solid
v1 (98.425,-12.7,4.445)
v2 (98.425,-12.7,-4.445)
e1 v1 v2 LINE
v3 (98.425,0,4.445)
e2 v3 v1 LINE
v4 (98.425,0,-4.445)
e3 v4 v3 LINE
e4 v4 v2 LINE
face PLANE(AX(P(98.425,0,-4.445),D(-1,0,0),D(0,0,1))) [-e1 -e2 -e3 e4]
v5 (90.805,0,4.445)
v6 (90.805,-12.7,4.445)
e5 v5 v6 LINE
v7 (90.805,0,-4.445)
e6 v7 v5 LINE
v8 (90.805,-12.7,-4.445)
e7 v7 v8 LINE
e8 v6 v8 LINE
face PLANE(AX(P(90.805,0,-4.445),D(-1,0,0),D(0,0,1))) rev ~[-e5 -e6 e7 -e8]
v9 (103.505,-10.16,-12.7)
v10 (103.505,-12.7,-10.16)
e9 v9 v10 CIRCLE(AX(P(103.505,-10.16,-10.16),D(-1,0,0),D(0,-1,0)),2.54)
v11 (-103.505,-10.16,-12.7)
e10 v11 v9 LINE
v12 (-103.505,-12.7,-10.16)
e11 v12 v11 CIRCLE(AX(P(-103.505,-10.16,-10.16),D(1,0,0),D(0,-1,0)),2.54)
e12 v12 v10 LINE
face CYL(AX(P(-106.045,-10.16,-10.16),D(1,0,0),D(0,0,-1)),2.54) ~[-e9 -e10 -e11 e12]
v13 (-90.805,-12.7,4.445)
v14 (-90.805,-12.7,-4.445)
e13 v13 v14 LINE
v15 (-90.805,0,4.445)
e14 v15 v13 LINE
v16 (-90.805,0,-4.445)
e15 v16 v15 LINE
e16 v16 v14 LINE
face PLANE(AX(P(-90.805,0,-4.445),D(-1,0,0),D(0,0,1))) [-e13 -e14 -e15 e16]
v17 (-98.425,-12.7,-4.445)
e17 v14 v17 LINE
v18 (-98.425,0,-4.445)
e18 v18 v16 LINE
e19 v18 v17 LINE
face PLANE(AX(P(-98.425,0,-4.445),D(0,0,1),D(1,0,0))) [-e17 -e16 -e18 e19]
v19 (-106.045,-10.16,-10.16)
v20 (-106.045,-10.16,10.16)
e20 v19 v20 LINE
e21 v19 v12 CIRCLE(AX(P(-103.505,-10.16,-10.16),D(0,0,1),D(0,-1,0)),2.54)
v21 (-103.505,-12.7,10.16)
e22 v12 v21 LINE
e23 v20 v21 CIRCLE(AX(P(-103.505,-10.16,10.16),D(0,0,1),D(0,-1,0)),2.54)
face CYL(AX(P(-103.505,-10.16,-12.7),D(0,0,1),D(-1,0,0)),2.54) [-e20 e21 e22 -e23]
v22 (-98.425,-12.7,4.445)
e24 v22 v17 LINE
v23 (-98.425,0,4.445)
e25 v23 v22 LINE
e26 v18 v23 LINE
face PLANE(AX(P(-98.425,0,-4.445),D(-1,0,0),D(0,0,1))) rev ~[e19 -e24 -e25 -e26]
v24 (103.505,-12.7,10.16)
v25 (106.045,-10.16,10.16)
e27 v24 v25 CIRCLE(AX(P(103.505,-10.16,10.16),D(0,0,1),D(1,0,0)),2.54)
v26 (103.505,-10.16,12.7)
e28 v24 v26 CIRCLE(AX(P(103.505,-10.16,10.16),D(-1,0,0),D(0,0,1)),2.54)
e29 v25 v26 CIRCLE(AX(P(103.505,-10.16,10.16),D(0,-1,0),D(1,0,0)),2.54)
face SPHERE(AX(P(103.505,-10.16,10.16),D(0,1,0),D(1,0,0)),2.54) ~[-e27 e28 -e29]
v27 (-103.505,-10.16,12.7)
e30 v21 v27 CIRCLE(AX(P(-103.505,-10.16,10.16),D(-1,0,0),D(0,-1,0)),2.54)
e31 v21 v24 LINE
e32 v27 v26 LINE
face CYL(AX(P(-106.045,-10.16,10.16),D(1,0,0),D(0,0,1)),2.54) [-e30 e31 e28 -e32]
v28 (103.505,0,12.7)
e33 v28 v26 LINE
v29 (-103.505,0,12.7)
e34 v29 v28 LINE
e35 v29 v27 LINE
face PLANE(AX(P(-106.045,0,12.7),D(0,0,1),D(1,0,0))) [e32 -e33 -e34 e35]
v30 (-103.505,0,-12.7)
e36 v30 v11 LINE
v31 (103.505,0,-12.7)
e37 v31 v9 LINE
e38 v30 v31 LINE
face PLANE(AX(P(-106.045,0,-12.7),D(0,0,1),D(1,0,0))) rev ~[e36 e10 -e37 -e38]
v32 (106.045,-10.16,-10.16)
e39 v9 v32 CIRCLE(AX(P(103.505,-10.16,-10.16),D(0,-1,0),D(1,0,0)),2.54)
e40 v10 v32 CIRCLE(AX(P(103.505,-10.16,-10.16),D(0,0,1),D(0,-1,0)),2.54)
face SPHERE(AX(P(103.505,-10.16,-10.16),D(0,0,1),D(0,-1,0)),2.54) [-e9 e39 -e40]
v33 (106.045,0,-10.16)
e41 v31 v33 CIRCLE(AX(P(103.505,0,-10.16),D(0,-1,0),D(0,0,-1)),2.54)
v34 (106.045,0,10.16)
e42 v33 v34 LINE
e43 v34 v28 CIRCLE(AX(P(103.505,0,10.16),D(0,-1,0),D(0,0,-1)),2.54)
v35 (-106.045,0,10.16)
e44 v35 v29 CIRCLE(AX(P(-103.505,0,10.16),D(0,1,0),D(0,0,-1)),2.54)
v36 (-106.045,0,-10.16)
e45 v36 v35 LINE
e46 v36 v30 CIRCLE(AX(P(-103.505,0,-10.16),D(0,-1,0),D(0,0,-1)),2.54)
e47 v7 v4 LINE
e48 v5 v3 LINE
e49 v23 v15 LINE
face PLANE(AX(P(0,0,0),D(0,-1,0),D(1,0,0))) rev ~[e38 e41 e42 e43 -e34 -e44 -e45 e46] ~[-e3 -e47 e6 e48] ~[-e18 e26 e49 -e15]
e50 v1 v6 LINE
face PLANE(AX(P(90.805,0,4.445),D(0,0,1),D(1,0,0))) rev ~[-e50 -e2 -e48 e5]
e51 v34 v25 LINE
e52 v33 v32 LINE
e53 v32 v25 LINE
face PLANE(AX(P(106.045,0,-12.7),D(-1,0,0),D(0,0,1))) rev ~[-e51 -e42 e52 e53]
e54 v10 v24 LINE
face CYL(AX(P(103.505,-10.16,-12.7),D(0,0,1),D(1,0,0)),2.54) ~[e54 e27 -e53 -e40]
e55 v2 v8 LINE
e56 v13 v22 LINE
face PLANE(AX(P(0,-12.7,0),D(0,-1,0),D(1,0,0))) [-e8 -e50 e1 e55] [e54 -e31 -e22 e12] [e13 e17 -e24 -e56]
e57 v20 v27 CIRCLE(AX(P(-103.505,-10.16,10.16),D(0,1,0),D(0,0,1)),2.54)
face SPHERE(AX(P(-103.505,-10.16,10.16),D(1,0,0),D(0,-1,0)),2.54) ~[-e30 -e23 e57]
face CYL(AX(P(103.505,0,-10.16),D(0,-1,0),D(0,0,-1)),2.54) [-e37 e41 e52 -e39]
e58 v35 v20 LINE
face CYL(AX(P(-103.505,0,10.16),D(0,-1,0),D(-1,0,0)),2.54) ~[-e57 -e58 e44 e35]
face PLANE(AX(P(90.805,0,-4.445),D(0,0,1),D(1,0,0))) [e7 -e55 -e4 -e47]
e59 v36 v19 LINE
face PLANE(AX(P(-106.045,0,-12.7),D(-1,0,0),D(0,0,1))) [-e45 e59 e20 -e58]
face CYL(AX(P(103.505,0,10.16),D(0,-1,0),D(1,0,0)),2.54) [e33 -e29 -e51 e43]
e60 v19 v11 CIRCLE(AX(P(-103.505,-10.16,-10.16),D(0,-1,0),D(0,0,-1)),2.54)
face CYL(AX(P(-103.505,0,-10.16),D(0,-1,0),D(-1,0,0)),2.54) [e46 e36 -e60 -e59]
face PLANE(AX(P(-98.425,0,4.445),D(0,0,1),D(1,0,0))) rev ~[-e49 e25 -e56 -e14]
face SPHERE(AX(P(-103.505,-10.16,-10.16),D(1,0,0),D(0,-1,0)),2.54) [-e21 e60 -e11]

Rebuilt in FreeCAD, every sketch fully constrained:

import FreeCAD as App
import Part
import Sketcher
Q = App.Units.Quantity


def edges_at(feature, points):
    """Names of the edges that pass closest to the given points."""
    edges = feature.Shape.Edges
    near = lambda p: min(range(len(edges)), key=lambda i: edges[i].distToShape(Part.Vertex(*p))[0])
    return sorted({f"Edge{near(p) + 1}" for p in points})


def add_polygon(sketch, points):
    """Adds a closed chain of lines whose ends are joined by coincident constraints."""
    first, n = sketch.GeometryCount, len(points)
    for a, b in zip(points, points[1:] + points[:1]):
        sketch.addGeometry(Part.LineSegment(App.Vector(*a, 0), App.Vector(*b, 0)), False)
    for i in range(n):
        sketch.addConstraint(Sketcher.Constraint("Coincident", first + i, 2, first + (i + 1) % n, 1))

doc = App.newDocument("Part")
params = doc.addObject("Spreadsheet::Sheet", "Params")
for row, (alias, value) in enumerate([
    ("sketch1_height", "1 in"),
    ("sketch1_width", "8.35 in"),
    ("pad1_length", "0.5 in"),
    ("fillet_radius", "0.1 in"),
    ("sketch2_width", "0.3 in"),
    ("sketch2_height", "0.35 in"),
    ("pocket1_length", "1 in"),
], start=1):
    params.set(f"A{row}", alias)
    params.set(f"B{row}", "=" + value)
    params.setAlias(f"B{row}", alias)

body = doc.addObject("PartDesign::Body", "Body")

sketch1 = body.newObject("Sketcher::SketchObject", "Sketch")
sketch1.AttachmentSupport = (doc.getObject("XZ_Plane"), [""])
sketch1.MapMode = "FlatFace"
add_polygon(sketch1, [(-106.045, 12.7), (-106.045, -12.7), (106.045, -12.7), (106.045, 12.7)])
sketch1.addConstraint([
    Sketcher.Constraint("Vertical", 0),
    Sketcher.Constraint("Horizontal", 1),
    Sketcher.Constraint("Vertical", 2),
    Sketcher.Constraint("Horizontal", 3),
    Sketcher.Constraint("Symmetric", 0, 2, 2, 2, -1, 1),
    Sketcher.Constraint("DistanceY", 0, 2, 0, 1, Q("1 in")),
    Sketcher.Constraint("DistanceX", 1, 1, 1, 2, Q("8.35 in")),
])
sketch1.setExpression("Constraints[9]", "Params.sketch1_height")
sketch1.setExpression("Constraints[10]", "Params.sketch1_width")
pad1 = body.newObject("PartDesign::Pad", "Pad")
pad1.Profile = sketch1
pad1.setExpression("Length", "Params.pad1_length")
doc.recompute()

fillet = body.newObject("PartDesign::Fillet", "Fillet")
fillet.Base = (pad1, edges_at(pad1, [
    (106.045, -6.35, 12.7),
    (106.045, -12.7, 0),
    (0, -12.7, 12.7),
    (0, -12.7, -12.7),
    (-106.045, -12.7, 0),
    (-106.045, -6.35, 12.7),
    (106.045, -6.35, -12.7),
    (-106.045, -6.35, -12.7),
]))
fillet.setExpression("Radius", "Params.fillet_radius")

sketch2 = body.newObject("Sketcher::SketchObject", "Sketch001")
sketch2.AttachmentSupport = (doc.getObject("XZ_Plane"), [""])
sketch2.MapMode = "FlatFace"
add_polygon(sketch2, [(90.805, 4.445), (90.805, -4.445), (98.425, -4.445), (98.425, 4.445)])
add_polygon(sketch2, [(-98.425, 4.445), (-98.425, -4.445), (-90.805, -4.445), (-90.805, 4.445)])
sketch2.addConstraint([
    Sketcher.Constraint("Vertical", 0),
    Sketcher.Constraint("Horizontal", 1),
    Sketcher.Constraint("Vertical", 2),
    Sketcher.Constraint("Horizontal", 3),
    Sketcher.Constraint("Vertical", 4),
    Sketcher.Constraint("Horizontal", 5),
    Sketcher.Constraint("Vertical", 6),
    Sketcher.Constraint("Horizontal", 7),
    Sketcher.Constraint("Symmetric", 2, 2, 4, 2, -1, 1),
    Sketcher.Constraint("Symmetric", 0, 2, 6, 2, -1, 1),
    Sketcher.Constraint("Horizontal", 1, 2, 4, 2),
    Sketcher.Constraint("DistanceX", 1, 1, 1, 2, Q("0.3 in")),
    Sketcher.Constraint("DistanceY", 0, 2, 0, 1, Q("0.35 in")),
    Sketcher.Constraint("DistanceX", 4, 2, 0, 2, Q("7.45 in")),
])
sketch2.setExpression("Constraints[19]", "Params.sketch2_width")
sketch2.setExpression("Constraints[20]", "Params.sketch2_height")
pocket1 = body.newObject("PartDesign::Pocket", "Pocket")
pocket1.Profile = sketch2
pocket1.setExpression("Length", "Params.pocket1_length")
pocket1.Reversed = True

doc.recompute()
